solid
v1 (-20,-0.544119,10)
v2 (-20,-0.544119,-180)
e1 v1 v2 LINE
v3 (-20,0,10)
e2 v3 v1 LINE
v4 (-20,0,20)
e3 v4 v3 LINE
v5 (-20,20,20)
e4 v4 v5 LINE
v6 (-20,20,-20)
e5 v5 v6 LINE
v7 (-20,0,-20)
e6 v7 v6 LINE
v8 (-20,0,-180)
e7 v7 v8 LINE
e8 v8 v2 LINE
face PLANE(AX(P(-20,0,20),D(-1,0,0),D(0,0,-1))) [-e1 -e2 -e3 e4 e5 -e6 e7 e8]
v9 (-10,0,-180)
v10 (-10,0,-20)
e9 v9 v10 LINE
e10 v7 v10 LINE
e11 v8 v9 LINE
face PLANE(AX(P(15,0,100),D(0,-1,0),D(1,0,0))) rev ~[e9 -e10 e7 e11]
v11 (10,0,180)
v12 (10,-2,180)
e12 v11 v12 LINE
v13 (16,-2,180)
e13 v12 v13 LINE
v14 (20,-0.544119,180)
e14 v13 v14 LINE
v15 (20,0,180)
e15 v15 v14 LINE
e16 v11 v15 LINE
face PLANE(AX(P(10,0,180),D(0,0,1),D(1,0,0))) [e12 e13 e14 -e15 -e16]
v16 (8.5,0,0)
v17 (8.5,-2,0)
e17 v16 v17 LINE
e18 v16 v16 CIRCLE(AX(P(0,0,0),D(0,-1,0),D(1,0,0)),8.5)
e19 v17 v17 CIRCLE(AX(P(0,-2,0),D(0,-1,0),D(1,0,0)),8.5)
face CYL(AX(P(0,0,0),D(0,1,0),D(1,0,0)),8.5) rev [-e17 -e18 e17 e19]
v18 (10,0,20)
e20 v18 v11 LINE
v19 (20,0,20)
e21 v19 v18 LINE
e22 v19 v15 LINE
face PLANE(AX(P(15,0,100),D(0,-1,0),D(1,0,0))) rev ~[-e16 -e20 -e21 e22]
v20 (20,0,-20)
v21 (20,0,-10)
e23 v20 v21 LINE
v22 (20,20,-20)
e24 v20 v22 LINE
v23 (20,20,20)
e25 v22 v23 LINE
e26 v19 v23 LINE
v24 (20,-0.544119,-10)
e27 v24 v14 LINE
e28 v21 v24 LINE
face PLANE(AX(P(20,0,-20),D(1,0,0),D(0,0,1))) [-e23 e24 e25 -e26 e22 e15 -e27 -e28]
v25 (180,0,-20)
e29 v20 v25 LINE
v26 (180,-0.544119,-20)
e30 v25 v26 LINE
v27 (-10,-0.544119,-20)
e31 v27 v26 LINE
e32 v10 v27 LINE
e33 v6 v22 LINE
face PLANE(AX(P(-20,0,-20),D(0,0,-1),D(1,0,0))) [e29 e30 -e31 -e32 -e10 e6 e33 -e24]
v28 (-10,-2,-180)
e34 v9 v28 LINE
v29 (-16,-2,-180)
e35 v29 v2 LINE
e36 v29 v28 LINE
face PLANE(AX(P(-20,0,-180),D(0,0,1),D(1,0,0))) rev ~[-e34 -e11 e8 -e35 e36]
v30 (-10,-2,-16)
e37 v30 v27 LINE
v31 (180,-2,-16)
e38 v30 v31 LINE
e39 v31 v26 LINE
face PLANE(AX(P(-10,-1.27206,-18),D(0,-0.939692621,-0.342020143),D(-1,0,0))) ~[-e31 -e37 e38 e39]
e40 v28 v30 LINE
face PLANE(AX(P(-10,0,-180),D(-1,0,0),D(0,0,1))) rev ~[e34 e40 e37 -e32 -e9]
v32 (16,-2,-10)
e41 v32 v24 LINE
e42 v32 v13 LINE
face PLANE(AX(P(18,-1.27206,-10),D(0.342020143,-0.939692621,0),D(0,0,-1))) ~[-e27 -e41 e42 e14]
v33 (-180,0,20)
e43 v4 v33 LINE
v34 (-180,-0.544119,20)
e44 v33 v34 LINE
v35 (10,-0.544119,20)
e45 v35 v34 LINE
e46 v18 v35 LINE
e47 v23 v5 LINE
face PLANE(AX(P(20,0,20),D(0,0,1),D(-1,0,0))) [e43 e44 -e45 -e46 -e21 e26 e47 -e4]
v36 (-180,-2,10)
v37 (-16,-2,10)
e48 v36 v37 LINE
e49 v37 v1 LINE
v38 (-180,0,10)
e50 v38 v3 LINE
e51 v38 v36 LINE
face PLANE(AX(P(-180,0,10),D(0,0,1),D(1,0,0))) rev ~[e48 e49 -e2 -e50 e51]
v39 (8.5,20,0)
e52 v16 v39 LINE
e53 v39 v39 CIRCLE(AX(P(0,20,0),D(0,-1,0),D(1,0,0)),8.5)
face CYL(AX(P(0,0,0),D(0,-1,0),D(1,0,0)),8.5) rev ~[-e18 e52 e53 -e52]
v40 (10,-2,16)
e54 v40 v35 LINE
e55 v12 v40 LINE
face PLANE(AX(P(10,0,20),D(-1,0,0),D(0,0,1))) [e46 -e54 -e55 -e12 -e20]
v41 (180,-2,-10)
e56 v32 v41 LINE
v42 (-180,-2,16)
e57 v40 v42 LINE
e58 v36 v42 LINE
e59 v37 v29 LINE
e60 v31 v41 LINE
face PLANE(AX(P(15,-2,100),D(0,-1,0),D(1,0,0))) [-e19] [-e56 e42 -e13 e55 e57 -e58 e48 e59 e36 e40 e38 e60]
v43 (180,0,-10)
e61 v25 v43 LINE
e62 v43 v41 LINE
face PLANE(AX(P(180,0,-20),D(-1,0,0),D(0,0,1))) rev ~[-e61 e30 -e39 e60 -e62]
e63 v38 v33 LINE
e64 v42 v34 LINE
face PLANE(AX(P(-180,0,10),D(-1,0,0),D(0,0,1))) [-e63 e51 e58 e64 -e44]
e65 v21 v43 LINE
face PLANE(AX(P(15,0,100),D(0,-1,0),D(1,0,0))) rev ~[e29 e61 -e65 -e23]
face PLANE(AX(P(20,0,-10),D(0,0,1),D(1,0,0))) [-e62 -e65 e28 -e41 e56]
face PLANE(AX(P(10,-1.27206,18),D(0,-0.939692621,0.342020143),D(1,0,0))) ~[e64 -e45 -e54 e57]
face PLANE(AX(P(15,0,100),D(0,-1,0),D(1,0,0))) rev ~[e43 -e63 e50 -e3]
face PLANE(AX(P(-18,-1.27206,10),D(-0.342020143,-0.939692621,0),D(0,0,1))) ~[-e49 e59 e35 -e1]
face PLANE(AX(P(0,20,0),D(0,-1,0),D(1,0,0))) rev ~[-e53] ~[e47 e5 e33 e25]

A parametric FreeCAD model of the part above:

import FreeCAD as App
import Part
import Sketcher


def edges_at(feature, points):
    """Names of the edges that pass closest to the given points."""
    edges = feature.Shape.Edges
    near = lambda p: min(range(len(edges)), key=lambda i: edges[i].distToShape(Part.Vertex(*p))[0])
    return sorted({f"Edge{near(p) + 1}" for p in points})

doc = App.newDocument("Part")
params = doc.addObject("Spreadsheet::Sheet", "Params")
for row, (alias, value) in enumerate([
    ("sketch1_diameter", "17 mm"),
    ("sketch1_width", "190 mm"),
    ("sketch1_width2", "160 mm"),
    ("sketch1_width3", "10 mm"),
    ("pad1_length", "2 mm"),
    ("sketch2_diameter", "17 mm"),
    ("sketch2_width", "40 mm"),
    ("pad2_length", "20 mm"),
    ("chamfer_size", "4 mm"),
    ("chamfer_size2", "1.455881 mm"),
], start=1):
    params.set(f"A{row}", alias)
    params.set(f"B{row}", "=" + value)
    params.setAlias(f"B{row}", alias)

body = doc.addObject("PartDesign::Body", "Body")

# Sketch on XZ plane
sketch1 = body.newObject("Sketcher::SketchObject", "Sketch")
sketch1.AttachmentSupport = (doc.getObject("XZ_Plane"), [""])
sketch1.MapMode = "FlatFace"
sketch1.addGeometry([
    Part.LineSegment(App.Vector(10, 180, 0), App.Vector(10, 20, 0)),  # 0
    Part.LineSegment(App.Vector(10, 20, 0), App.Vector(-180, 20, 0)),  # 1
    Part.LineSegment(App.Vector(-180, 20, 0), App.Vector(-180, 10, 0)),  # 2
    Part.LineSegment(App.Vector(-180, 10, 0), App.Vector(-20, 10, 0)),  # 3
    Part.LineSegment(App.Vector(-20, 10, 0), App.Vector(-20, -180, 0)),  # 4
    Part.LineSegment(App.Vector(-20, -180, 0), App.Vector(-10, -180, 0)),  # 5
    Part.LineSegment(App.Vector(-10, -180, 0), App.Vector(-10, -20, 0)),  # 6
    Part.LineSegment(App.Vector(-10, -20, 0), App.Vector(180, -20, 0)),  # 7
    Part.LineSegment(App.Vector(180, -20, 0), App.Vector(180, -10, 0)),  # 8
    Part.LineSegment(App.Vector(180, -10, 0), App.Vector(20, -10, 0)),  # 9
    Part.LineSegment(App.Vector(20, -10, 0), App.Vector(20, 180, 0)),  # 10
    Part.LineSegment(App.Vector(20, 180, 0), App.Vector(10, 180, 0)),  # 11
    Part.Circle(App.Vector(0, 0, 0), App.Vector(0, 0, 1), 8.5),  # 12
], False)
sketch1.addConstraint([
    Sketcher.Constraint("Coincident", 0, 2, 1, 1),
    Sketcher.Constraint("Coincident", 1, 2, 2, 1),
    Sketcher.Constraint("Coincident", 2, 2, 3, 1),
    Sketcher.Constraint("Coincident", 3, 2, 4, 1),
    Sketcher.Constraint("Coincident", 4, 2, 5, 1),
    Sketcher.Constraint("Coincident", 5, 2, 6, 1),
    Sketcher.Constraint("Coincident", 6, 2, 7, 1),
    Sketcher.Constraint("Coincident", 7, 2, 8, 1),
    Sketcher.Constraint("Coincident", 8, 2, 9, 1),
    Sketcher.Constraint("Coincident", 9, 2, 10, 1),
    Sketcher.Constraint("Coincident", 10, 2, 11, 1),
    Sketcher.Constraint("Coincident", 11, 2, 0, 1),
    Sketcher.Constraint("Vertical", 0),
    Sketcher.Constraint("Horizontal", 1),
    Sketcher.Constraint("Vertical", 2),
    Sketcher.Constraint("Horizontal", 3),
    Sketcher.Constraint("Vertical", 4),
    Sketcher.Constraint("Horizontal", 5),
    Sketcher.Constraint("Vertical", 6),
    Sketcher.Constraint("Horizontal", 7),
    Sketcher.Constraint("Vertical", 8),
    Sketcher.Constraint("Horizontal", 9),
    Sketcher.Constraint("Vertical", 10),
    Sketcher.Constraint("Horizontal", 11),
    Sketcher.Constraint("Coincident", 12, 3, -1, 1),
    Sketcher.Constraint("Symmetric", 0, 2, 6, 2, -1, 1),
    Sketcher.Constraint("Symmetric", 2, 2, 8, 2, -1, 1),
    Sketcher.Constraint("Symmetric", 4, 2, 10, 2, -1, 1),
    Sketcher.Constraint("Equal", 9, 0),
    Sketcher.Constraint("Equal", 11, 2),
    Sketcher.Constraint("Equal", 7, 4),
    Sketcher.Constraint("Diameter", 12, 17.0),
    Sketcher.Constraint("DistanceX", 1, 2, 1, 1, 190.0),
    Sketcher.Constraint("DistanceX", 3, 1, 3, 2, 160.0),
    Sketcher.Constraint("DistanceX", 5, 1, 5, 2, 10.0),
])
sketch1.setExpression("Constraints[31]", "Params.sketch1_diameter")
sketch1.setExpression("Constraints[32]", "Params.sketch1_width")
sketch1.setExpression("Constraints[33]", "Params.sketch1_width2")
sketch1.setExpression("Constraints[34]", "Params.sketch1_width3")
pad1 = body.newObject("PartDesign::Pad", "Pad")
pad1.Profile = sketch1
pad1.setExpression("Length", "Params.pad1_length")

# Sketch on XZ plane
sketch2 = body.newObject("Sketcher::SketchObject", "Sketch001")
sketch2.AttachmentSupport = (doc.getObject("XZ_Plane"), [""])
sketch2.MapMode = "FlatFace"
sketch2.addGeometry([
    Part.LineSegment(App.Vector(20, -20, 0), App.Vector(20, 20, 0)),  # 0
    Part.LineSegment(App.Vector(20, 20, 0), App.Vector(-20, 20, 0)),  # 1
    Part.LineSegment(App.Vector(-20, 20, 0), App.Vector(-20, -20, 0)),  # 2
    Part.LineSegment(App.Vector(-20, -20, 0), App.Vector(20, -20, 0)),  # 3
    Part.Circle(App.Vector(0, 0, 0), App.Vector(0, 0, 1), 8.5),  # 4
], False)
sketch2.addConstraint([
    Sketcher.Constraint("Coincident", 0, 2, 1, 1),
    Sketcher.Constraint("Coincident", 1, 2, 2, 1),
    Sketcher.Constraint("Coincident", 2, 2, 3, 1),
    Sketcher.Constraint("Coincident", 3, 2, 0, 1),
    Sketcher.Constraint("Vertical", 0),
    Sketcher.Constraint("Horizontal", 1),
    Sketcher.Constraint("Vertical", 2),
    Sketcher.Constraint("Horizontal", 3),
    Sketcher.Constraint("Coincident", 4, 3, -1, 1),
    Sketcher.Constraint("Symmetric", 0, 2, 2, 2, -1, 1),
    Sketcher.Constraint("Equal", 3, 0),
    Sketcher.Constraint("Diameter", 4, 17.0),
    Sketcher.Constraint("DistanceX", 1, 2, 1, 1, 40.0),
])
sketch2.setExpression("Constraints[11]", "Params.sketch2_diameter")
sketch2.setExpression("Constraints[12]", "Params.sketch2_width")
pad2 = body.newObject("PartDesign::Pad", "Pad001")
pad2.Profile = sketch2
pad2.setExpression("Length", "Params.pad2_length")
pad2.Reversed = True
doc.recompute()

chamfer = body.newObject("PartDesign::Chamfer", "Chamfer")
chamfer.Base = (pad2, edges_at(pad2, [
    (-85, -2, 20),
    (20, -2, 85),
    (85, -2, -20),
    (-20, -2, -85),
]))
chamfer.ChamferType = "Two distances"
chamfer.setExpression("Size", "Params.chamfer_size")
chamfer.setExpression("Size2", "Params.chamfer_size2")

doc.recompute()
